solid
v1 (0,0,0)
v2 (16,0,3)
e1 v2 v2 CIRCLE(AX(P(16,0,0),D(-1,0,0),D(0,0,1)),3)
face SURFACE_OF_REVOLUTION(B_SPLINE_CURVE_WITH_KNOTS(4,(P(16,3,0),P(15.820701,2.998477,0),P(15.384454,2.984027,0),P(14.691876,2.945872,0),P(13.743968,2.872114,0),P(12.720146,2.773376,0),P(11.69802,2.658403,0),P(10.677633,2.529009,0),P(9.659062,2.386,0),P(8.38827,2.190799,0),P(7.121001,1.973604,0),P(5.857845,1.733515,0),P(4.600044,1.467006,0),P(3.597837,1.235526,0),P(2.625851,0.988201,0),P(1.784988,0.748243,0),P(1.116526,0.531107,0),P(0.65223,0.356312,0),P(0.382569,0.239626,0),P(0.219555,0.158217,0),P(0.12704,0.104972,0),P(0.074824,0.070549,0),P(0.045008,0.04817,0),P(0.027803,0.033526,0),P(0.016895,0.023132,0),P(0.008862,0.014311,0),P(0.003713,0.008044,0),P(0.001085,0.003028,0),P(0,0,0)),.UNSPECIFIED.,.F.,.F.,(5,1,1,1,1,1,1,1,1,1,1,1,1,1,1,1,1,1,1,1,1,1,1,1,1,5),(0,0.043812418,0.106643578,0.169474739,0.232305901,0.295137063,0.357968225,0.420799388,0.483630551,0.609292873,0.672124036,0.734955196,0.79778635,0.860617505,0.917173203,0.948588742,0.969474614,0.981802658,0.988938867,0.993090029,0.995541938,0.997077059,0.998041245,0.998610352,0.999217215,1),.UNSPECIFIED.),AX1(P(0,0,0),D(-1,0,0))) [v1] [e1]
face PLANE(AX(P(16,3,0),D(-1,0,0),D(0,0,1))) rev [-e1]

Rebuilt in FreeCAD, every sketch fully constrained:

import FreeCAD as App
import Part
import Sketcher

V = App.Vector

doc = App.newDocument("Part")
body = doc.addObject("PartDesign::Body", "Body")

# Sketch on XY plane
sketch1 = body.newObject("Sketcher::SketchObject", "Sketch")
sketch1.AttachmentSupport = (doc.getObject("XY_Plane"), [""])
sketch1.MapMode = "FlatFace"
sketch1.addGeometry([
    Part.LineSegment(V(0, 0, 0), V(16, 0, 0)),
    Part.LineSegment(V(16, 0, 0), V(16, 3, 0)),
    Part.BSplineCurve([V(0, 0, 0), V(0.001085, 0.003028, 0), V(0.003713, 0.008044, 0), V(0.008862, 0.014311, 0), V(0.016895, 0.023132, 0), V(0.027803, 0.033526, 0), V(0.045008, 0.04817, 0), V(0.074824, 0.070549, 0), V(0.12704, 0.104972, 0), V(0.219555, 0.158217, 0), V(0.382569, 0.239626, 0), V(0.65223, 0.356312, 0), V(1.116526, 0.531107, 0), V(1.784988, 0.748243, 0), V(2.625851, 0.988201, 0), V(3.597837, 1.235526, 0), V(4.600044, 1.467006, 0), V(5.857845, 1.733515, 0), V(7.121001, 1.973604, 0), V(8.38827, 2.190799, 0), V(9.659062, 2.386, 0), V(10.677633, 2.529009, 0), V(11.69802, 2.658403, 0), V(12.720146, 2.773376, 0), V(13.743968, 2.872114, 0), V(14.691876, 2.945872, 0), V(15.384454, 2.984027, 0), V(15.820701, 2.998477, 0), V(16, 3, 0)], [5, 1, 1, 1, 1, 1, 1, 1, 1, 1, 1, 1, 1, 1, 1, 1, 1, 1, 1, 1, 1, 1, 1, 1, 1, 5], [0, 0.000782785, 0.001389648, 0.001958755, 0.002922941, 0.004458062, 0.006909971, 0.011061133, 0.018197342, 0.030525386, 0.051411258, 0.082826797, 0.139382495, 0.20221365, 0.265044804, 0.327875964, 0.390707127, 0.516369449, 0.579200612, 0.642031775, 0.704862937, 0.767694099, 0.830525261, 0.893356422, 0.956187582, 1], False, 4, [1, 1, 1, 1, 1, 1, 1, 1, 1, 1, 1, 1, 1, 1, 1, 1, 1, 1, 1, 1, 1, 1, 1, 1, 1, 1, 1, 1, 1], False),
], False)
sketch1.addConstraint([
    Sketcher.Constraint("Block", 2),
    Sketcher.Constraint("Coincident", 0, 2, 1, 1),
    Sketcher.Constraint("Coincident", 1, 2, 2, 2),
    Sketcher.Constraint("Coincident", 2, 1, 0, 1),
    Sketcher.Constraint("Horizontal", 0),
    Sketcher.Constraint("Vertical", 1),
])
revolution = body.newObject("PartDesign::Revolution", "Revolution")
revolution.Profile = sketch1
revolution.ReferenceAxis = (sketch1, ["H_Axis"])
revolution.Angle = 360

doc.recompute()
